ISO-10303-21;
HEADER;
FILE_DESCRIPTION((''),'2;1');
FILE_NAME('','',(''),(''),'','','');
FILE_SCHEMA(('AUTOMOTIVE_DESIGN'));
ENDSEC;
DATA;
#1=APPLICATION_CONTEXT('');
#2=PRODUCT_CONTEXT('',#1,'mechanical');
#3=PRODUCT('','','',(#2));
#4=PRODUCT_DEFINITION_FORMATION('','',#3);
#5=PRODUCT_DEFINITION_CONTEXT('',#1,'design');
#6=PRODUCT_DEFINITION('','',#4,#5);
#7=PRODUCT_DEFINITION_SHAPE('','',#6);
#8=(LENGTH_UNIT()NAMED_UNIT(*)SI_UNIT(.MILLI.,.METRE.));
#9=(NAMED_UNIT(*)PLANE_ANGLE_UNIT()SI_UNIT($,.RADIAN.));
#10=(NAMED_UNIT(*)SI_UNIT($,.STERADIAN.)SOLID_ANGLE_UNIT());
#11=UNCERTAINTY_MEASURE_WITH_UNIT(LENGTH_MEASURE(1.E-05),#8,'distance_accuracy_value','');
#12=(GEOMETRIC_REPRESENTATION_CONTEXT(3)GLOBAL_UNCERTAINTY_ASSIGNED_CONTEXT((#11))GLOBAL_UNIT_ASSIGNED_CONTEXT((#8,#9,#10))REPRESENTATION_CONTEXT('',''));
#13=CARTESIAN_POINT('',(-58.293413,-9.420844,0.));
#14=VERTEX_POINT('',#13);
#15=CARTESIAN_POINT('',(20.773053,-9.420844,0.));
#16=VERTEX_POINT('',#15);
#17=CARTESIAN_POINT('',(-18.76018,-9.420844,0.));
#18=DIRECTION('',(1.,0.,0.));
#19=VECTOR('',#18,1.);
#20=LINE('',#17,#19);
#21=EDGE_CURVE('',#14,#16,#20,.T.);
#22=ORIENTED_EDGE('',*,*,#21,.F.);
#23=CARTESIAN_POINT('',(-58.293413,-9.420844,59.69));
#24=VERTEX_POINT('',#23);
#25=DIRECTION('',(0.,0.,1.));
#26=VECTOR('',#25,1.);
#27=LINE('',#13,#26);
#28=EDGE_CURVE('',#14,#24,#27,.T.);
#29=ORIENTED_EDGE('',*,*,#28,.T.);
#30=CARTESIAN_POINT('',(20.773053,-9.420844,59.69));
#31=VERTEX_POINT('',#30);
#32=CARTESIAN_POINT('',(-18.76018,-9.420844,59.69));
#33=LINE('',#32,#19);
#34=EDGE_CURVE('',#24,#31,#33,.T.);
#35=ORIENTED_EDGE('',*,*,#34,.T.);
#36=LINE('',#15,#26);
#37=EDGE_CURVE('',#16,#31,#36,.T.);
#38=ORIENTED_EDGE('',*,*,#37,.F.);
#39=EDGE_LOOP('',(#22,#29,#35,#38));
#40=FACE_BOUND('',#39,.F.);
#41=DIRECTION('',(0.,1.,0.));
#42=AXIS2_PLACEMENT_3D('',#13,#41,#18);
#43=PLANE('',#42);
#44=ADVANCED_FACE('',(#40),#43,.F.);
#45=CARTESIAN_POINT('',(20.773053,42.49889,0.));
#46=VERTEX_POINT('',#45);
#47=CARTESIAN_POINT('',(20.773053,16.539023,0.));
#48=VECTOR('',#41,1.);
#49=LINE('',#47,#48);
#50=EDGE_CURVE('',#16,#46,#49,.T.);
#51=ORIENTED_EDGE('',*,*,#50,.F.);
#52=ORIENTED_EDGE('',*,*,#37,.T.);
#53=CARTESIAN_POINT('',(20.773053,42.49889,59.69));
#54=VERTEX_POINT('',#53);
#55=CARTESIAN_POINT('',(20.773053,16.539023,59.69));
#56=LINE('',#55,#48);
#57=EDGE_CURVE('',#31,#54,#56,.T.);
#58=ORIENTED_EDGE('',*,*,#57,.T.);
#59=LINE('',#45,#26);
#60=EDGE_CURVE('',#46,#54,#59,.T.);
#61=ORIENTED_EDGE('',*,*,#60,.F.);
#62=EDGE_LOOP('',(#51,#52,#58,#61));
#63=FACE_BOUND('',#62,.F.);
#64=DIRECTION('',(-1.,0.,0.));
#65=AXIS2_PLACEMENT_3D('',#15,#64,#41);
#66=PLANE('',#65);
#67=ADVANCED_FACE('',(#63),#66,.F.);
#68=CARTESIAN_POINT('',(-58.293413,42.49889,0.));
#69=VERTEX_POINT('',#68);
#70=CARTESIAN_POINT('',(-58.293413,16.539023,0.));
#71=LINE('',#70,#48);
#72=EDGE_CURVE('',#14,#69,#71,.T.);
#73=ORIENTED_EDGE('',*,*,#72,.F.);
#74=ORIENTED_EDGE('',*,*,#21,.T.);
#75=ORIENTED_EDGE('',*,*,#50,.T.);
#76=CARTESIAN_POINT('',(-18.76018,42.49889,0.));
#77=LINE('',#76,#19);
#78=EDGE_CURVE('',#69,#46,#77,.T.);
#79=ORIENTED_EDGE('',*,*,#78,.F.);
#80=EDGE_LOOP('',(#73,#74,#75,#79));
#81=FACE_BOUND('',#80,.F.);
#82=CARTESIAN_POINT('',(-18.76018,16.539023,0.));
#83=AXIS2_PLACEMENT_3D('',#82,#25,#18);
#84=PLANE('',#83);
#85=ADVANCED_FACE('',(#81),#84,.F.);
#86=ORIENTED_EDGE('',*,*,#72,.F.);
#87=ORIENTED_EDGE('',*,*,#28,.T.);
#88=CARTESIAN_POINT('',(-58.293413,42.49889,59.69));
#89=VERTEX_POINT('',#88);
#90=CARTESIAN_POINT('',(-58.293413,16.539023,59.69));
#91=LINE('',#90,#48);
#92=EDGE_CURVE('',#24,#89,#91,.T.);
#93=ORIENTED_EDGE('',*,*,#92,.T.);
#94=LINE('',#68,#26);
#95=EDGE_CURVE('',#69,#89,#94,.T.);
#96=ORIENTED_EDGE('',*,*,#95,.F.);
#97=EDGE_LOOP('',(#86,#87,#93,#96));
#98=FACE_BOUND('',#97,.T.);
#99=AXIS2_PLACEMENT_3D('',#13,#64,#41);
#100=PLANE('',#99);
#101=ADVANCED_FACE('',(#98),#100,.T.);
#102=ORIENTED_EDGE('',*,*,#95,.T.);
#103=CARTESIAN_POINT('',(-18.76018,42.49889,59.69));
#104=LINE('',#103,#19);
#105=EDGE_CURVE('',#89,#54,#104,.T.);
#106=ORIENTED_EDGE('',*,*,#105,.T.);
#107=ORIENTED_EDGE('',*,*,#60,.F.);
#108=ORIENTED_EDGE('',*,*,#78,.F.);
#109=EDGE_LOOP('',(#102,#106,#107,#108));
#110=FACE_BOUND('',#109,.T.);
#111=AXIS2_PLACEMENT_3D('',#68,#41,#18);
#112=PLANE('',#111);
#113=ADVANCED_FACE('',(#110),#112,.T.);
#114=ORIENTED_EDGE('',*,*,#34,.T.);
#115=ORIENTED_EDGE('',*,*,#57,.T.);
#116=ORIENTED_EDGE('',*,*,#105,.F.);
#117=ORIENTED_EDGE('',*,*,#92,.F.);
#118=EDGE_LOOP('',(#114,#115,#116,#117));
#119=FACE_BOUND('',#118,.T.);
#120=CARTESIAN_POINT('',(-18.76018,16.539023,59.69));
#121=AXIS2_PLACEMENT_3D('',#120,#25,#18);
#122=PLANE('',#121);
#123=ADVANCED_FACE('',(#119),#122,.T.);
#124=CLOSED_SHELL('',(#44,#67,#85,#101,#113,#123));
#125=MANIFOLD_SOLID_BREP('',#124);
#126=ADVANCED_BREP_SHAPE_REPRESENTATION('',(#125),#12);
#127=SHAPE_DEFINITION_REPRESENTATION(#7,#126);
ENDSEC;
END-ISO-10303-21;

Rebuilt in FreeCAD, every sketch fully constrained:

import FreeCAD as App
import Part
import Sketcher
from FreeCAD import Vector
Q = App.Units.Quantity


def add_polygon(sketch, points):
    """Adds a closed chain of lines whose ends are joined by coincident constraints."""
    first, n = sketch.GeometryCount, len(points)
    for a, b in zip(points, points[1:] + points[:1]):
        sketch.addGeometry(Part.LineSegment(App.Vector(*a, 0), App.Vector(*b, 0)), False)
    for i in range(n):
        sketch.addConstraint(Sketcher.Constraint("Coincident", first + i, 2, first + (i + 1) % n, 1))

doc = App.newDocument("Part")
params = doc.addObject("Spreadsheet::Sheet", "Params")
for row, (alias, value) in enumerate([
    ("pad1_length", "2.35 in"),
    ("pocket1_length", "1 in"),
], start=1):
    params.set(f"A{row}", alias)
    params.set(f"B{row}", "=" + value)
    params.setAlias(f"B{row}", alias)

body = doc.addObject("PartDesign::Body", "Body")

# Sketch on XY plane
sketch1 = body.newObject("Sketcher::SketchObject", "Sketch")
sketch1.AttachmentSupport = (doc.getObject("XY_Plane"), [""])
sketch1.MapMode = "FlatFace"
add_polygon(sketch1, [(-58.293413, 42.49889), (-58.293413, -9.420844), (20.773053, -9.420844), (20.773053, 42.49889)])  # lines 0-3
sketch1.addConstraint([
    Sketcher.Constraint("Vertical", 0),
    Sketcher.Constraint("Horizontal", 1),
    Sketcher.Constraint("Vertical", 2),
    Sketcher.Constraint("Horizontal", 3),
    Sketcher.Constraint("DistanceX", 1, 1, 1, 2, Q("79.066466 mm")),
    Sketcher.Constraint("DistanceY", 0, 2, 0, 1, Q("51.919734 mm")),
    Sketcher.Constraint("DistanceY", -1, 1, 2, 2, Q("42.49889 mm")),
    Sketcher.Constraint("DistanceX", 0, 2, -1, 1, Q("58.293413 mm")),
])
pad1 = body.newObject("PartDesign::Pad", "Pad")
pad1.Profile = sketch1
pad1.setExpression("Length", "Params.pad1_length")

# Sketch on XY plane
sketch2 = body.newObject("Sketcher::SketchObject", "Sketch001")
sketch2.AttachmentSupport = (doc.getObject("XY_Plane"), [""])
sketch2.MapMode = "FlatFace"
add_polygon(sketch2, [(-49.323238, 33.223664), (-49.323238, 0), (9.806102, 0), (9.806102, 33.223664)])  # lines 0-3
sketch2.addConstraint([
    Sketcher.Constraint("Vertical", 0),
    Sketcher.Constraint("Horizontal", 1),
    Sketcher.Constraint("Vertical", 2),
    Sketcher.Constraint("Horizontal", 3),
    Sketcher.Constraint("PointOnObject", 0, 2, -1),
    Sketcher.Constraint("DistanceX", 1, 1, 1, 2, Q("59.12934 mm")),
    Sketcher.Constraint("DistanceX", -1, 1, 1, 2, Q("9.806102 mm")),
    Sketcher.Constraint("DistanceY", 0, 2, 0, 1, Q("33.223663 mm")),
])
pocket1 = body.newObject("PartDesign::Pocket", "Pocket")
pocket1.Profile = sketch2
pocket1.setExpression("Length", "Params.pocket1_length")

doc.recompute()
